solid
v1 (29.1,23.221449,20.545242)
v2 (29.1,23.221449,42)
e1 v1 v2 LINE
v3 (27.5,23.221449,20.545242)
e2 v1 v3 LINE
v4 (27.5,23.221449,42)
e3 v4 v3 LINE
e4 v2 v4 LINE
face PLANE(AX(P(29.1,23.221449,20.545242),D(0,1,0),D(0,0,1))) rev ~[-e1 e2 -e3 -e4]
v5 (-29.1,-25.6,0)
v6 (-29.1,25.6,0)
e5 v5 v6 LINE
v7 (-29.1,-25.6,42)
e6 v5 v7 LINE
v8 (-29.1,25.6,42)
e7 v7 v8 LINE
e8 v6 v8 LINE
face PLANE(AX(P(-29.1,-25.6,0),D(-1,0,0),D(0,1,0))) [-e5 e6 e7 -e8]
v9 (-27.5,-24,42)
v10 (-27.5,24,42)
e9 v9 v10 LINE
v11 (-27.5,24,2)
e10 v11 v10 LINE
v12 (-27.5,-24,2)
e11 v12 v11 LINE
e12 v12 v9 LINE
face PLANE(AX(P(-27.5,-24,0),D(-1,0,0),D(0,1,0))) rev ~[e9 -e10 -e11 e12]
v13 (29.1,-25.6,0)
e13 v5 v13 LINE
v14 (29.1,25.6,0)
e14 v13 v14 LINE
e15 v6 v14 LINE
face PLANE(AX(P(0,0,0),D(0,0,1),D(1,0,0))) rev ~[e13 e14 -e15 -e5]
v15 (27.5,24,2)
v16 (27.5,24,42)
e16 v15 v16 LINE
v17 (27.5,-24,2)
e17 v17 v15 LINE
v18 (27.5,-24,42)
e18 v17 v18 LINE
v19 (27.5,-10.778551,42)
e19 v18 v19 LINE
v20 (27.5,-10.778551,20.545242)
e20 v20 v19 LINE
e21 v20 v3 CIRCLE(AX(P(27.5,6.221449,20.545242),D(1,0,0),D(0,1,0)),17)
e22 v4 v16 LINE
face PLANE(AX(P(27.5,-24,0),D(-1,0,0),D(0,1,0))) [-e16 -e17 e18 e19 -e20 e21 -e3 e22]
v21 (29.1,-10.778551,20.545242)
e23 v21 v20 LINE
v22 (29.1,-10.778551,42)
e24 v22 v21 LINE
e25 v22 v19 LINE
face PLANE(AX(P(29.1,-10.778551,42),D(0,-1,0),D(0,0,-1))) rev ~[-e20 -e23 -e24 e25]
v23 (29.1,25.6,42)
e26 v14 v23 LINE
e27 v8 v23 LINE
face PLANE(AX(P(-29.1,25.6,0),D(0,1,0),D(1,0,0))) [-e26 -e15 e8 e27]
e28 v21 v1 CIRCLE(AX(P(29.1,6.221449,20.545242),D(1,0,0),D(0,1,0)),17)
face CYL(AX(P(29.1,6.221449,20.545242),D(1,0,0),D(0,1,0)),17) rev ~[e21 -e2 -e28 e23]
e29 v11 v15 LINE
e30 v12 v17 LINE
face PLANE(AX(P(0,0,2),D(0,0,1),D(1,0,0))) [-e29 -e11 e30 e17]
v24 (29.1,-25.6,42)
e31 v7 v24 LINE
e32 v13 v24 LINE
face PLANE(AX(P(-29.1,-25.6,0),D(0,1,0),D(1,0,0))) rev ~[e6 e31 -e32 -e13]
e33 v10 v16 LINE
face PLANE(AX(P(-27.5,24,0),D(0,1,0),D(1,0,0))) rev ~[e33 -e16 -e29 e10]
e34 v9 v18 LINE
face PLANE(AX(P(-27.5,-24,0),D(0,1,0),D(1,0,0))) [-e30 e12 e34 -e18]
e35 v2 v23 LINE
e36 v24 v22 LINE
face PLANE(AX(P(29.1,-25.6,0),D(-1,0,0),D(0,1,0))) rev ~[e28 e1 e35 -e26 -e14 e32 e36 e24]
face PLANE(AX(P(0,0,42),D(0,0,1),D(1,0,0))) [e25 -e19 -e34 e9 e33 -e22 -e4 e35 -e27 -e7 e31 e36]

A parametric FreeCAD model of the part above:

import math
import FreeCAD as App
import Part
import Sketcher

V = App.Vector

doc = App.newDocument("Part")
params = doc.addObject("Spreadsheet::Sheet", "Params")
for row, (alias, value) in enumerate([
    ("sketch1_width", "55 mm"),
    ("sketch1_height", "48 mm"),
    ("pad1_length", "2 mm"),
    ("sketch2_width", "55 mm"),
    ("sketch2_height", "48 mm"),
    ("sketch2_width2", "58.2 mm"),
    ("sketch2_height2", "51.2 mm"),
    ("pad2_length", "42 mm"),
    ("sketch3_radius", "17 mm"),
    ("pocket1_length", "4 mm"),
], start=1):
    params.set(f"A{row}", alias)
    params.set(f"B{row}", "=" + value)
    params.setAlias(f"B{row}", alias)

body = doc.addObject("PartDesign::Body", "Body")

sketch1 = body.newObject("Sketcher::SketchObject", "Sketch")
sketch1.AttachmentSupport = (doc.getObject("XY_Plane"), [""])
sketch1.MapMode = "FlatFace"
sketch1.addGeometry([
    Part.LineSegment(V(-28, 24, 0), V(-28, -24, 0)),
    Part.LineSegment(V(-28, -24, 0), V(28, -24, 0)),
    Part.LineSegment(V(28, -24, 0), V(28, 24, 0)),
    Part.LineSegment(V(28, 24, 0), V(-28, 24, 0)),
], False)
sketch1.addConstraint([
    Sketcher.Constraint("Coincident", 0, 2, 1, 1),
    Sketcher.Constraint("Coincident", 1, 2, 2, 1),
    Sketcher.Constraint("Coincident", 2, 2, 3, 1),
    Sketcher.Constraint("Coincident", 3, 2, 0, 1),
    Sketcher.Constraint("Vertical", 0),
    Sketcher.Constraint("Horizontal", 1),
    Sketcher.Constraint("Vertical", 2),
    Sketcher.Constraint("Horizontal", 3),
    Sketcher.Constraint("Symmetric", 0, 2, 2, 2, -1, 1),
    Sketcher.Constraint("DistanceX", 1, 1, 1, 2, 55.0),
    Sketcher.Constraint("DistanceY", 0, 2, 0, 1, 48.0),
])
sketch1.setExpression("Constraints[9]", "Params.sketch1_width")
sketch1.setExpression("Constraints[10]", "Params.sketch1_height")
pad1 = body.newObject("PartDesign::Pad", "Pad")
pad1.Profile = sketch1
pad1.setExpression("Length", "Params.pad1_length")

sketch2 = body.newObject("Sketcher::SketchObject", "Sketch001")
sketch2.AttachmentSupport = (doc.getObject("XY_Plane"), [""])
sketch2.MapMode = "FlatFace"
sketch2.addGeometry([
    Part.LineSegment(V(-29, 26, 0), V(-29, -26, 0)),
    Part.LineSegment(V(-29, -26, 0), V(29, -26, 0)),
    Part.LineSegment(V(29, -26, 0), V(29, 26, 0)),
    Part.LineSegment(V(29, 26, 0), V(-29, 26, 0)),
    Part.LineSegment(V(28, -24, 0), V(-28, -24, 0)),
    Part.LineSegment(V(-28, -24, 0), V(-28, 24, 0)),
    Part.LineSegment(V(-28, 24, 0), V(28, 24, 0)),
    Part.LineSegment(V(28, 24, 0), V(28, -24, 0)),
], False)
sketch2.addConstraint([
    Sketcher.Constraint("Coincident", 0, 2, 1, 1),
    Sketcher.Constraint("Coincident", 1, 2, 2, 1),
    Sketcher.Constraint("Coincident", 2, 2, 3, 1),
    Sketcher.Constraint("Coincident", 3, 2, 0, 1),
    Sketcher.Constraint("Coincident", 4, 2, 5, 1),
    Sketcher.Constraint("Coincident", 5, 2, 6, 1),
    Sketcher.Constraint("Coincident", 6, 2, 7, 1),
    Sketcher.Constraint("Coincident", 7, 2, 4, 1),
    Sketcher.Constraint("Vertical", 0),
    Sketcher.Constraint("Horizontal", 1),
    Sketcher.Constraint("Vertical", 2),
    Sketcher.Constraint("Horizontal", 3),
    Sketcher.Constraint("Horizontal", 4),
    Sketcher.Constraint("Vertical", 5),
    Sketcher.Constraint("Horizontal", 6),
    Sketcher.Constraint("Vertical", 7),
    Sketcher.Constraint("Symmetric", 0, 2, 2, 2, -1, 1),
    Sketcher.Constraint("Symmetric", 4, 2, 6, 2, -1, 1),
    Sketcher.Constraint("DistanceX", 4, 2, 4, 1, 55.0),
    Sketcher.Constraint("DistanceY", 5, 1, 5, 2, 48.0),
    Sketcher.Constraint("DistanceX", 1, 1, 1, 2, 58.2),
    Sketcher.Constraint("DistanceY", 0, 2, 0, 1, 51.2),
])
sketch2.setExpression("Constraints[18]", "Params.sketch2_width")
sketch2.setExpression("Constraints[19]", "Params.sketch2_height")
sketch2.setExpression("Constraints[20]", "Params.sketch2_width2")
sketch2.setExpression("Constraints[21]", "Params.sketch2_height2")
pad2 = body.newObject("PartDesign::Pad", "Pad001")
pad2.Profile = sketch2
pad2.setExpression("Length", "Params.pad2_length")

sketch3 = body.newObject("Sketcher::SketchObject", "Sketch002")
sketch3.AttachmentSupport = (doc.getObject("YZ_Plane"), [""])
sketch3.MapMode = "FlatFace"
sketch3.AttachmentOffset = App.Placement(V(0, 0, 29.1), App.Rotation())
sketch3.addGeometry([
    Part.LineSegment(V(23, 21, 0), V(23, 42, 0)),
    Part.LineSegment(V(23, 42, 0), V(-11, 42, 0)),
    Part.LineSegment(V(-11, 42, 0), V(-11, 21, 0)),
    Part.ArcOfCircle(Part.Circle(V(6, 21, 0), V(0, 0, 1), 17), math.radians(180), math.radians(360)),
], False)
sketch3.addConstraint([
    Sketcher.Constraint("Coincident", 0, 2, 1, 1),
    Sketcher.Constraint("Coincident", 1, 2, 2, 1),
    Sketcher.Constraint("Tangent", 2, 2, 3, 1),
    Sketcher.Constraint("Tangent", 3, 2, 0, 1),
    Sketcher.Constraint("Vertical", 0),
    Sketcher.Constraint("Horizontal", 1),
    Sketcher.Constraint("Vertical", 2),
    Sketcher.Constraint("Radius", 3, 17.0),
    Sketcher.Constraint("DistanceY", -1, 1, 0, 2, 42.0),
    Sketcher.Constraint("DistanceY", 0, 1, 0, 2, 21.454758),
    Sketcher.Constraint("DistanceX", -1, 1, 3, 3, 6.221449),
])
sketch3.setExpression("Constraints[7]", "Params.sketch3_radius")
pocket1 = body.newObject("PartDesign::Pocket", "Pocket")
pocket1.Profile = sketch3
pocket1.setExpression("Length", "Params.pocket1_length")

doc.recompute()
